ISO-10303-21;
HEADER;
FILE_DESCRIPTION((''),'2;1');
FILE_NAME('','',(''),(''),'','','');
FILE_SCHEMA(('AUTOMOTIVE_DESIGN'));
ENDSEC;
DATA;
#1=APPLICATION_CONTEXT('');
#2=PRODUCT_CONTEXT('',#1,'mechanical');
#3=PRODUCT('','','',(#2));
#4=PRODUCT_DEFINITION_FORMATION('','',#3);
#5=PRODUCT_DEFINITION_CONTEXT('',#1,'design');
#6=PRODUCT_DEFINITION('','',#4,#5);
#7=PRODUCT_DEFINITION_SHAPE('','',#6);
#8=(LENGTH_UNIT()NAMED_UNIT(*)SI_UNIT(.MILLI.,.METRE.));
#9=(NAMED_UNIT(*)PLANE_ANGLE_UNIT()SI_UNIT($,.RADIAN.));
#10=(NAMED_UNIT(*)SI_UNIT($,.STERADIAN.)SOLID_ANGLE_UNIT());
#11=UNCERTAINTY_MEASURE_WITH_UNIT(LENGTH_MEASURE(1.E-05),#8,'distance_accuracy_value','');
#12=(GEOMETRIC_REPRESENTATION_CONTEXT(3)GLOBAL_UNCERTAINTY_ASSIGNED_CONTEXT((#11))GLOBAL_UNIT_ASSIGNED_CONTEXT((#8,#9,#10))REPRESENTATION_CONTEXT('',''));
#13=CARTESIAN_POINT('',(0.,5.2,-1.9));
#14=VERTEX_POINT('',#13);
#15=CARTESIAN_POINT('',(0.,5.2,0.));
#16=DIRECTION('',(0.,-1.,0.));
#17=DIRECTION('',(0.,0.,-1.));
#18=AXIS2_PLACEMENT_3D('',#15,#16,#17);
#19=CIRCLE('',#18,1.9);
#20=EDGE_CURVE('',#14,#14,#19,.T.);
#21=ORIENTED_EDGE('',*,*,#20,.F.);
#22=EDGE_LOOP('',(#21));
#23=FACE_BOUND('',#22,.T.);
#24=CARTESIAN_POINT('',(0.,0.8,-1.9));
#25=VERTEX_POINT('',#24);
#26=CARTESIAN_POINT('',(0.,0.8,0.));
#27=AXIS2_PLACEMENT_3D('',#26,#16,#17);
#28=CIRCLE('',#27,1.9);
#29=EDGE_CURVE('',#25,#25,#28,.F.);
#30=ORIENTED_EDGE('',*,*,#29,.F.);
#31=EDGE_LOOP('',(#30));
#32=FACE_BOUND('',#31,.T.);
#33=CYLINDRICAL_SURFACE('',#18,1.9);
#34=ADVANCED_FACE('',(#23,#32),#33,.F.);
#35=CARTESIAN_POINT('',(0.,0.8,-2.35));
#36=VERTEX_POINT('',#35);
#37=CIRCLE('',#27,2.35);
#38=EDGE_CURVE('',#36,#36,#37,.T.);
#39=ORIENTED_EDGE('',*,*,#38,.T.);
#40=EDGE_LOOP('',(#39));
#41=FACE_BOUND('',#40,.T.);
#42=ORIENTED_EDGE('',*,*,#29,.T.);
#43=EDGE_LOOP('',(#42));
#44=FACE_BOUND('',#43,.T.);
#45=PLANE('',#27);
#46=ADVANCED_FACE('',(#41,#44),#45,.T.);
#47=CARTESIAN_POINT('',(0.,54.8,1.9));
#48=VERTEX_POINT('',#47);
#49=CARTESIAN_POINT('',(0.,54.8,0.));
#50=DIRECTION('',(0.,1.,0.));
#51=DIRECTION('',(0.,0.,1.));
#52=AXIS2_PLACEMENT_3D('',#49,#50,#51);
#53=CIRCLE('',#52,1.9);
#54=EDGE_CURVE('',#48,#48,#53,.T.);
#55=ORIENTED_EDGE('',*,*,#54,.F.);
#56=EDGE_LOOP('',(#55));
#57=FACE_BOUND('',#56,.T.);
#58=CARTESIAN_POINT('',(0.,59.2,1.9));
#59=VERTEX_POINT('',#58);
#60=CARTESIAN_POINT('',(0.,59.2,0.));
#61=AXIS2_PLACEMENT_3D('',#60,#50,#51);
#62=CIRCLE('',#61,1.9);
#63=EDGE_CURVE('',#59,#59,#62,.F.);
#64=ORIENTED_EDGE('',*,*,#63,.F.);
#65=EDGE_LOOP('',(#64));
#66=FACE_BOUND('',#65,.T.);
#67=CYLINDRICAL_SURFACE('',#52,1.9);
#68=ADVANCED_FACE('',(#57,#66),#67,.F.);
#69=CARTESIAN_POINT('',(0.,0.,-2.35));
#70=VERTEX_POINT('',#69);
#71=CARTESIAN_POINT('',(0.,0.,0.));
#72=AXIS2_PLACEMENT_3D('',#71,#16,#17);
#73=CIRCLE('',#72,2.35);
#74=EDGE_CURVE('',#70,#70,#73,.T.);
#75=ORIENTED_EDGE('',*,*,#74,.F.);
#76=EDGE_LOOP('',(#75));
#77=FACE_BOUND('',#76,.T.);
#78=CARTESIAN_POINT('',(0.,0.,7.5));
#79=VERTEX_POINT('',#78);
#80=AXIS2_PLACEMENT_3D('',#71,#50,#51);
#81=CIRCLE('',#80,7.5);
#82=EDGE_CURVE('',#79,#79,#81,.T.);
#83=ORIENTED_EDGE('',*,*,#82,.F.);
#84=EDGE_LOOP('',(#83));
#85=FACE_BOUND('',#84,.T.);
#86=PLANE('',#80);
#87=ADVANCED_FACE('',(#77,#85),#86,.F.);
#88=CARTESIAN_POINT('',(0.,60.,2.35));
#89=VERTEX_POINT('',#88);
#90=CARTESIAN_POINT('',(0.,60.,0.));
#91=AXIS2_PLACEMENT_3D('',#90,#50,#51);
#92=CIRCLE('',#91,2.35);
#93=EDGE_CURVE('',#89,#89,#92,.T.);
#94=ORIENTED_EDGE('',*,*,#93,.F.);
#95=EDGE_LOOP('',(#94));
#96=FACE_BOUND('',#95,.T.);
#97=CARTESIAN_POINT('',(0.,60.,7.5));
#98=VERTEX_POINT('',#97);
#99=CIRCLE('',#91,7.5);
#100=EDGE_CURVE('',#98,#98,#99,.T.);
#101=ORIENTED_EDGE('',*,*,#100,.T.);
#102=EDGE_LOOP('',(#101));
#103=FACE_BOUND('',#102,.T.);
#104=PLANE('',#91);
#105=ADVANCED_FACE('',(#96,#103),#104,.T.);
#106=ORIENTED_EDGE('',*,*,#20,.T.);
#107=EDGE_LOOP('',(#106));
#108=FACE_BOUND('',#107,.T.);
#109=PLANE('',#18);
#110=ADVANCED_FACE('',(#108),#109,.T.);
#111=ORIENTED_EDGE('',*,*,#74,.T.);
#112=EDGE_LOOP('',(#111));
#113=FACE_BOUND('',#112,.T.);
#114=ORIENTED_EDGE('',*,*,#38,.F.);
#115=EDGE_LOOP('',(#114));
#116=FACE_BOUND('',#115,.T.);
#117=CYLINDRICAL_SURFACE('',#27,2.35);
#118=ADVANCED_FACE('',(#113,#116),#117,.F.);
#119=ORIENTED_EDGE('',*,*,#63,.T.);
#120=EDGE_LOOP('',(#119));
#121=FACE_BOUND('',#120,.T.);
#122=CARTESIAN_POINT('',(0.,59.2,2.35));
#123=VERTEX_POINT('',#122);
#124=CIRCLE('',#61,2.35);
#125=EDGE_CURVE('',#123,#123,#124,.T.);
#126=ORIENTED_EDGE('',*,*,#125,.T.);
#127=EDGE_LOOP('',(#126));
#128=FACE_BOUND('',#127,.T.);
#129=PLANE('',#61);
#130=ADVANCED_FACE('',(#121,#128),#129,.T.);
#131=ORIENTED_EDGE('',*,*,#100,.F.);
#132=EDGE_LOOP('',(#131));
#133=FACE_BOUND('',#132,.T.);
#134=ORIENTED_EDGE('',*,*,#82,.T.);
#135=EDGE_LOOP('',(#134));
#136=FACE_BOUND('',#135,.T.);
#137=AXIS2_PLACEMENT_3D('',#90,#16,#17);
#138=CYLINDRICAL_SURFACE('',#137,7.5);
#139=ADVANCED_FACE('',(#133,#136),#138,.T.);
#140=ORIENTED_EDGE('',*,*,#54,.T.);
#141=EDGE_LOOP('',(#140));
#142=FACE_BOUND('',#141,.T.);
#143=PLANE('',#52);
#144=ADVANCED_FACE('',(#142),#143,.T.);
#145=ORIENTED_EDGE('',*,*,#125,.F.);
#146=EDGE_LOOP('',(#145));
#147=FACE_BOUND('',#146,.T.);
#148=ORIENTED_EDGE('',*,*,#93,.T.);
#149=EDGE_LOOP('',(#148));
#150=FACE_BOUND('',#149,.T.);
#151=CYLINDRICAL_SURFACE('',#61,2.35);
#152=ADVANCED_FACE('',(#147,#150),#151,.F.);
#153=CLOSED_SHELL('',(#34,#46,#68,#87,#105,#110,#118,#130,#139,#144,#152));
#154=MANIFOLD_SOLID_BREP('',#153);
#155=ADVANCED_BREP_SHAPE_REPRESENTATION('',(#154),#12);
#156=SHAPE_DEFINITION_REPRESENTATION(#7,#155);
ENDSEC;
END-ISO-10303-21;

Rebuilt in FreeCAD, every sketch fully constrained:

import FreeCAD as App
import Part
import Sketcher
from FreeCAD import Vector
Q = App.Units.Quantity

doc = App.newDocument("Part")
body = doc.addObject("PartDesign::Body", "Body")

sketch1 = body.newObject("Sketcher::SketchObject", "Sketch")
sketch1.AttachmentSupport = (doc.getObject("XZ_Plane"), [""])
sketch1.MapMode = "FlatFace"
sketch1.addGeometry(Part.Circle(Vector(0, 0, 0), Vector(0, 0, 1), 8), False)
sketch1.addConstraint([
    Sketcher.Constraint("Coincident", 0, 3, -1, 1),
    Sketcher.Constraint("Diameter", 0, Q("15 mm")),
])
pad1 = body.newObject("PartDesign::Pad", "Pad")
pad1.Profile = sketch1
pad1.Length = 60
pad1.Reversed = True

sketch2 = body.newObject("Sketcher::SketchObject", "Sketch001")
sketch2.AttachmentSupport = (doc.getObject("XZ_Plane"), [""])
sketch2.MapMode = "FlatFace"
sketch2.AttachmentOffset = App.Placement(Vector(0, 0, -60), App.Rotation())
sketch2.addGeometry(Part.Circle(Vector(0, 0, 0), Vector(0, 0, 1), 1.9), False)
sketch2.addConstraint([
    Sketcher.Constraint("Coincident", 0, 3, -1, 1),
    Sketcher.Constraint("Diameter", 0, Q("3.8 mm")),
])
pocket1 = body.newObject("PartDesign::Pocket", "Pocket")
pocket1.Profile = sketch2
pocket1.Length = 5.2
pocket1.Reversed = True

sketch3 = body.newObject("Sketcher::SketchObject", "Sketch002")
sketch3.AttachmentSupport = (doc.getObject("XZ_Plane"), [""])
sketch3.MapMode = "FlatFace"
sketch3.AttachmentOffset = App.Placement(Vector(0, 0, -5.2), App.Rotation())
sketch3.addGeometry(Part.Circle(Vector(0, 0, 0), Vector(0, 0, 1), 1.9), False)
sketch3.addConstraint([
    Sketcher.Constraint("Coincident", 0, 3, -1, 1),
    Sketcher.Constraint("Diameter", 0, Q("3.8 mm")),
])
pocket2 = body.newObject("PartDesign::Pocket", "Pocket001")
pocket2.Profile = sketch3
pocket2.Length = 5.2
pocket2.Reversed = True

sketch4 = body.newObject("Sketcher::SketchObject", "Sketch003")
sketch4.AttachmentSupport = (doc.getObject("XZ_Plane"), [""])
sketch4.MapMode = "FlatFace"
sketch4.AttachmentOffset = App.Placement(Vector(0, 0, -60), App.Rotation())
sketch4.addGeometry(Part.Circle(Vector(0, 0, 0), Vector(0, 0, 1), 2.4), False)
sketch4.addConstraint([
    Sketcher.Constraint("Coincident", 0, 3, -1, 1),
    Sketcher.Constraint("Diameter", 0, Q("4.7 mm")),
])
pocket3 = body.newObject("PartDesign::Pocket", "Pocket002")
pocket3.Profile = sketch4
pocket3.Length = 0.8
pocket3.Reversed = True

sketch5 = body.newObject("Sketcher::SketchObject", "Sketch004")
sketch5.AttachmentSupport = (doc.getObject("XZ_Plane"), [""])
sketch5.MapMode = "FlatFace"
sketch5.AttachmentOffset = App.Placement(Vector(0, 0, -0.8), App.Rotation())
sketch5.addGeometry(Part.Circle(Vector(0, 0, 0), Vector(0, 0, 1), 2.4), False)
sketch5.addConstraint([
    Sketcher.Constraint("Coincident", 0, 3, -1, 1),
    Sketcher.Constraint("Diameter", 0, Q("4.7 mm")),
])
pocket4 = body.newObject("PartDesign::Pocket", "Pocket003")
pocket4.Profile = sketch5
pocket4.Length = 0.8
pocket4.Reversed = True

doc.recompute()
